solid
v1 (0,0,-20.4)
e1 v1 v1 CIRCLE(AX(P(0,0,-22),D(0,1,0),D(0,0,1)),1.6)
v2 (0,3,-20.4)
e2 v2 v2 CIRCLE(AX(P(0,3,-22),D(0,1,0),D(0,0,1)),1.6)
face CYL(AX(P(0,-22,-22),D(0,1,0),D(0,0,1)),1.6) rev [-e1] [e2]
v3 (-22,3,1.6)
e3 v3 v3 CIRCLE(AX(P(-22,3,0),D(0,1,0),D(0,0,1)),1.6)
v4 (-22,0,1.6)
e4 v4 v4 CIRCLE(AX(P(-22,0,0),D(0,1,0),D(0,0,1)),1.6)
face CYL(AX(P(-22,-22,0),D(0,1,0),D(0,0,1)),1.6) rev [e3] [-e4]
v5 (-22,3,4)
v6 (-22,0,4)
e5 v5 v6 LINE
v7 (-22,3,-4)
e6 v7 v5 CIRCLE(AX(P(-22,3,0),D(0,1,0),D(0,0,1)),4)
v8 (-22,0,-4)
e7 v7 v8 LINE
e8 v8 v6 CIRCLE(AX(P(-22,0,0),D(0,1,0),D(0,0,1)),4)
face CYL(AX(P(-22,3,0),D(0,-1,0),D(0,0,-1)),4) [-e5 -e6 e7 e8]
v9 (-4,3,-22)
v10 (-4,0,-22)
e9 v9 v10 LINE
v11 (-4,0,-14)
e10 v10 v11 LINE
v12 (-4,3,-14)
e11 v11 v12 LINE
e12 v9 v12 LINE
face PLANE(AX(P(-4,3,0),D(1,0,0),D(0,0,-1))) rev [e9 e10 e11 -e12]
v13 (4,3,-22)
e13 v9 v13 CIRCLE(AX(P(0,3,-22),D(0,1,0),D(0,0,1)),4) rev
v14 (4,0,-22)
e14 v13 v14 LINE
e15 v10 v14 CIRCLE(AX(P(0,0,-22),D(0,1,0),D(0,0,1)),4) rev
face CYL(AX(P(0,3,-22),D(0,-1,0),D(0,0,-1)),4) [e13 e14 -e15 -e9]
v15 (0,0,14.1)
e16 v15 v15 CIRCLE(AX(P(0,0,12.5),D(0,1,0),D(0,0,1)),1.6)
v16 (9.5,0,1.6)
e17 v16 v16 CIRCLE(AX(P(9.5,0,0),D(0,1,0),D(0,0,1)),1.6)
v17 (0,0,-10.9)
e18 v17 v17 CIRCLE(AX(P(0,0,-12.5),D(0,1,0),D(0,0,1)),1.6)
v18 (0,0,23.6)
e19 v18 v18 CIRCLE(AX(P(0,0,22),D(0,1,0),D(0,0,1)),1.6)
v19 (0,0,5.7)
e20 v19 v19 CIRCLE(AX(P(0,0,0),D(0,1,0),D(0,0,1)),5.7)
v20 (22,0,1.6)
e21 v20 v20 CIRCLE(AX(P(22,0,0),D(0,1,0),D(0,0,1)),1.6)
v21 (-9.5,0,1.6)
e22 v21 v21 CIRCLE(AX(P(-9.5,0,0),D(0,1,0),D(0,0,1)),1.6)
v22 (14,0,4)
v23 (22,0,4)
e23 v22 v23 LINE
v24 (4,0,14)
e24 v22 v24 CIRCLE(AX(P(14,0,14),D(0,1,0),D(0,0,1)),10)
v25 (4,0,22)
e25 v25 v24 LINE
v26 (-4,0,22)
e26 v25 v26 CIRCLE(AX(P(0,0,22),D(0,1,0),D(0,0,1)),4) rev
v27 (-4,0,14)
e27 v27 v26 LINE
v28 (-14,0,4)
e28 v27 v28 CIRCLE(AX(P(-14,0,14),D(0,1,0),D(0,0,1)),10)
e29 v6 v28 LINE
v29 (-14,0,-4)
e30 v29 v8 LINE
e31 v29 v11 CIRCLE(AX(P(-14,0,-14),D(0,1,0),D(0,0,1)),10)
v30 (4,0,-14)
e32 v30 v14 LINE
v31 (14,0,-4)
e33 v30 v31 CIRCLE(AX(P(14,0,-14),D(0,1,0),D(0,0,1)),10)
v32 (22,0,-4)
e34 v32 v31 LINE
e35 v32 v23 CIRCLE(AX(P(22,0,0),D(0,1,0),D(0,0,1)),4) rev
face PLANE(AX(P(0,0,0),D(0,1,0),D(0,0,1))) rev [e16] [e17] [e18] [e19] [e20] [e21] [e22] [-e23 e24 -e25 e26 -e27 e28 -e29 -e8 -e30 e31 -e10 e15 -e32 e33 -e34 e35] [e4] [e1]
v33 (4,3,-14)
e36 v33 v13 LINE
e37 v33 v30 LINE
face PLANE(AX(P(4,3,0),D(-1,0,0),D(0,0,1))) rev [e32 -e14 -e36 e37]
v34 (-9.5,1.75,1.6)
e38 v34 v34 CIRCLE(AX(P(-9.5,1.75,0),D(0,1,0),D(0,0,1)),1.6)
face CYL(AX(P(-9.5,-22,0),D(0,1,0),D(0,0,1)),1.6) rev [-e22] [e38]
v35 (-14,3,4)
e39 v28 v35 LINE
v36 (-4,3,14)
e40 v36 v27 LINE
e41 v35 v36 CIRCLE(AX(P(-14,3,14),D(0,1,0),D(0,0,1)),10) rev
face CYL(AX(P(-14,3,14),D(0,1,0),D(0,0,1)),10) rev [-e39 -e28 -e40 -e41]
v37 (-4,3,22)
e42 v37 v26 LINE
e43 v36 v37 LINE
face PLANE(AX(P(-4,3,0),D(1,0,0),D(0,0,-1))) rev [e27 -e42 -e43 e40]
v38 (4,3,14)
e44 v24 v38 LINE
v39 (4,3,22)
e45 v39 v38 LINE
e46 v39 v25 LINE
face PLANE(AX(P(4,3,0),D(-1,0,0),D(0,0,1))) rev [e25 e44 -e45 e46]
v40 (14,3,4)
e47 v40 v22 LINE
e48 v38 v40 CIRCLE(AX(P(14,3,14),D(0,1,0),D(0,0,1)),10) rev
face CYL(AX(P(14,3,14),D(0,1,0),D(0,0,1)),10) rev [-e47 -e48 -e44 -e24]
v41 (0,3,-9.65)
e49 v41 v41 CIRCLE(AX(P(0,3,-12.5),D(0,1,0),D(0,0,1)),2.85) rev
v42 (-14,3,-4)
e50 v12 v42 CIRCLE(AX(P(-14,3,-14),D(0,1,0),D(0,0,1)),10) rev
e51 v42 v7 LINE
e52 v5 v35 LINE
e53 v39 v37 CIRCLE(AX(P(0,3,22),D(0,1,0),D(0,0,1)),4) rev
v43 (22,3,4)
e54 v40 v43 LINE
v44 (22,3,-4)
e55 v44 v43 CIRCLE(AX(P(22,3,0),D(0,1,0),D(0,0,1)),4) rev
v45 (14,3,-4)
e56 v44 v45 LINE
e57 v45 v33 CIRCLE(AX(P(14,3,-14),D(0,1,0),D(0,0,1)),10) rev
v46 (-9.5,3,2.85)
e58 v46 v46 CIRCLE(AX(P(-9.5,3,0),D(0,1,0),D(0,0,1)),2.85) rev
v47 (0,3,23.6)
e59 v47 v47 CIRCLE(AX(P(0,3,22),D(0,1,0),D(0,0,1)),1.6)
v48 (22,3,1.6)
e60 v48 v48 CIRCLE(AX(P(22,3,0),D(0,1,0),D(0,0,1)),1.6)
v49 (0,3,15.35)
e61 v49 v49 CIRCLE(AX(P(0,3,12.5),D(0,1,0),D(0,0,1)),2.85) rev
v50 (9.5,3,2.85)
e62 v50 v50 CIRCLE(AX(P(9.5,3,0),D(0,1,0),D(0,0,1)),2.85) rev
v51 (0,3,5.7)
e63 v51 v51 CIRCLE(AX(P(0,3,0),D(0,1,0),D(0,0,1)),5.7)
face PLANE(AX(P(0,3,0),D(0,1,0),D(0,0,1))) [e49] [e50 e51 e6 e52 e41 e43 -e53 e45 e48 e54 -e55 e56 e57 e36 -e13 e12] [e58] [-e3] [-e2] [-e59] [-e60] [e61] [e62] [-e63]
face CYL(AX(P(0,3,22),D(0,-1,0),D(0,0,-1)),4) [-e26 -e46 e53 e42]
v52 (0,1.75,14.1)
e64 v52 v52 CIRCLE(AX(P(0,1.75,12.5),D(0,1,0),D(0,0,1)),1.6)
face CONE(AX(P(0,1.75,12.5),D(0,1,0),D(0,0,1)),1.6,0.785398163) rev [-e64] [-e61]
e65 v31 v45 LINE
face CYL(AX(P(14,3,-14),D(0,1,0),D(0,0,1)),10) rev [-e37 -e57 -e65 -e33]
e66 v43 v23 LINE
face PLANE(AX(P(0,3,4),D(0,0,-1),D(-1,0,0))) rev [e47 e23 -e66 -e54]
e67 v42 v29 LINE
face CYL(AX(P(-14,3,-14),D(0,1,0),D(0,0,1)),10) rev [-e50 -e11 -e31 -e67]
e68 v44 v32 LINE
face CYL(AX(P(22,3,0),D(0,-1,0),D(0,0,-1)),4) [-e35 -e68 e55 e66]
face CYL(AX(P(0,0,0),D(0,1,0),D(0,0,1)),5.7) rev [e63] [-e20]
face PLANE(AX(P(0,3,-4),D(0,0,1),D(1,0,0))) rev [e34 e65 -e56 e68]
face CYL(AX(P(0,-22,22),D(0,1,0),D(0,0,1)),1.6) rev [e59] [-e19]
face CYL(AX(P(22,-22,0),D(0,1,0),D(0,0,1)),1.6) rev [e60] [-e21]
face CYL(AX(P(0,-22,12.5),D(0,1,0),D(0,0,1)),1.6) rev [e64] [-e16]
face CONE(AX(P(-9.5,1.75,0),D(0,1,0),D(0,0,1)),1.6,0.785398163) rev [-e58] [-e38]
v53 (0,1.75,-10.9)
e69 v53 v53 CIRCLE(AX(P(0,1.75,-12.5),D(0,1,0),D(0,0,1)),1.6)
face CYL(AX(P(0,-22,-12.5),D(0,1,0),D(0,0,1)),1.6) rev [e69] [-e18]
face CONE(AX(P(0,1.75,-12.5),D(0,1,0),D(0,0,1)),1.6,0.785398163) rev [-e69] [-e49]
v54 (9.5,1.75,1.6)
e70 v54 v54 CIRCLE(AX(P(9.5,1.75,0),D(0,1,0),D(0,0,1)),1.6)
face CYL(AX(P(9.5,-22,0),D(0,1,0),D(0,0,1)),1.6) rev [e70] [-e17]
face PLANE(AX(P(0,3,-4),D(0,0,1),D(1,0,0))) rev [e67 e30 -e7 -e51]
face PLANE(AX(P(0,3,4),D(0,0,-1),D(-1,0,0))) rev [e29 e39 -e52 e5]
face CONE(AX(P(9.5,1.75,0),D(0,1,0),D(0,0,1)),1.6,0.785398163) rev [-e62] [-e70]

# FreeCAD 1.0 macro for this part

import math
import FreeCAD as App
import Part
import Sketcher
from FreeCAD import Vector
Q = App.Units.Quantity


def edges_at(feature, points):
    """Names of the edges that pass closest to the given points."""
    edges = feature.Shape.Edges
    near = lambda p: min(range(len(edges)), key=lambda i: edges[i].distToShape(Part.Vertex(*p))[0])
    return sorted({f"Edge{near(p) + 1}" for p in points})

doc = App.newDocument("Part")
body = doc.addObject("PartDesign::Body", "Body")

# Sketch on XZ plane
sketch1 = body.newObject("Sketcher::SketchObject", "Sketch")
sketch1.AttachmentSupport = (doc.getObject("XZ_Plane"), [""])
sketch1.MapMode = "FlatFace"
sketch1.addGeometry(Part.LineSegment(Vector(4, -4, 0), Vector(4, -22, 0)), False)
sketch1.addGeometry(Part.ArcOfCircle(Part.Circle(Vector(0, -22, 0), Vector(0, 0, 1), 4), math.radians(180), math.radians(360)), False)
sketch1.addGeometry(Part.LineSegment(Vector(-4, -22, 0), Vector(-4, -4, 0)), False)
sketch1.addGeometry(Part.LineSegment(Vector(-4, -4, 0), Vector(-22, -4, 0)), False)
sketch1.addGeometry(Part.ArcOfCircle(Part.Circle(Vector(-22, 0, 0), Vector(0, 0, 1), 4), math.radians(90), math.radians(270)), False)
sketch1.addGeometry(Part.LineSegment(Vector(-22, 4, 0), Vector(-4, 4, 0)), False)
sketch1.addGeometry(Part.LineSegment(Vector(-4, 4, 0), Vector(-4, 22, 0)), False)
sketch1.addGeometry(Part.ArcOfCircle(Part.Circle(Vector(0, 22, 0), Vector(0, 0, 1), 4), math.radians(0), math.radians(180)), False)
sketch1.addGeometry(Part.LineSegment(Vector(4, 22, 0), Vector(4, 4, 0)), False)
sketch1.addGeometry(Part.LineSegment(Vector(4, 4, 0), Vector(22, 4, 0)), False)
sketch1.addGeometry(Part.ArcOfCircle(Part.Circle(Vector(22, 0, 0), Vector(0, 0, 1), 4), math.radians(-90), math.radians(90)), False)
sketch1.addGeometry(Part.LineSegment(Vector(22, -4, 0), Vector(4, -4, 0)), False)
sketch1.addConstraint(Sketcher.Constraint("Tangent", 0, 2, 1, 2))
sketch1.addConstraint(Sketcher.Constraint("Tangent", 1, 1, 2, 1))
sketch1.addConstraint(Sketcher.Constraint("Coincident", 2, 2, 3, 1))
sketch1.addConstraint(Sketcher.Constraint("Tangent", 3, 2, 4, 2))
sketch1.addConstraint(Sketcher.Constraint("Tangent", 4, 1, 5, 1))
sketch1.addConstraint(Sketcher.Constraint("Coincident", 5, 2, 6, 1))
sketch1.addConstraint(Sketcher.Constraint("Tangent", 6, 2, 7, 2))
sketch1.addConstraint(Sketcher.Constraint("Tangent", 7, 1, 8, 1))
sketch1.addConstraint(Sketcher.Constraint("Coincident", 8, 2, 9, 1))
sketch1.addConstraint(Sketcher.Constraint("Tangent", 9, 2, 10, 2))
sketch1.addConstraint(Sketcher.Constraint("Tangent", 10, 1, 11, 1))
sketch1.addConstraint(Sketcher.Constraint("Coincident", 11, 2, 0, 1))
sketch1.addConstraint(Sketcher.Constraint("Vertical", 0))
sketch1.addConstraint(Sketcher.Constraint("Vertical", 2))
sketch1.addConstraint(Sketcher.Constraint("Horizontal", 3))
sketch1.addConstraint(Sketcher.Constraint("Horizontal", 5))
sketch1.addConstraint(Sketcher.Constraint("Vertical", 6))
sketch1.addConstraint(Sketcher.Constraint("Vertical", 8))
sketch1.addConstraint(Sketcher.Constraint("Horizontal", 9))
sketch1.addConstraint(Sketcher.Constraint("Horizontal", 11))
sketch1.addConstraint(Sketcher.Constraint("Equal", 1, 4))
sketch1.addConstraint(Sketcher.Constraint("Equal", 4, 7))
sketch1.addConstraint(Sketcher.Constraint("Equal", 7, 10))
sketch1.addConstraint(Sketcher.Constraint("Symmetric", 1, 3, 7, 3, -1, 1))
sketch1.addConstraint(Sketcher.Constraint("Symmetric", 4, 3, 10, 3, -1, 1))
sketch1.addConstraint(Sketcher.Constraint("Symmetric", 5, 2, 8, 2, -2))
sketch1.addConstraint(Sketcher.Constraint("Equal", 11, 0))
sketch1.addConstraint(Sketcher.Constraint("Radius", 1, Q("4 mm")))
sketch1.addConstraint(Sketcher.Constraint("DistanceX", 3, 2, 3, 1, Q("18 mm")))
pad1 = body.newObject("PartDesign::Pad", "Pad")
pad1.Profile = sketch1
pad1.Length = 3
pad1.Reversed = True

# Sketch on XZ plane
sketch2 = body.newObject("Sketcher::SketchObject", "Sketch001")
sketch2.AttachmentSupport = (doc.getObject("XZ_Plane"), [""])
sketch2.MapMode = "FlatFace"
sketch2.AttachmentOffset = App.Placement(Vector(0, 0, -3), App.Rotation())
sketch2.addGeometry(Part.Circle(Vector(-22, 0, 0), Vector(0, 0, 1), 1.6), False)
sketch2.addGeometry(Part.Circle(Vector(0, -22, 0), Vector(0, 0, 1), 1.6), False)
sketch2.addGeometry(Part.Circle(Vector(0, 22, 0), Vector(0, 0, 1), 1.6), False)
sketch2.addGeometry(Part.Circle(Vector(22, 0, 0), Vector(0, 0, 1), 1.6), False)
sketch2.addGeometry(Part.Circle(Vector(0, -12.5, 0), Vector(0, 0, 1), 1.6), False)
sketch2.addGeometry(Part.Circle(Vector(-9.5, 0, 0), Vector(0, 0, 1), 1.6), False)
sketch2.addGeometry(Part.Circle(Vector(0, 12.5, 0), Vector(0, 0, 1), 1.6), False)
sketch2.addGeometry(Part.Circle(Vector(9.5, 0, 0), Vector(0, 0, 1), 1.6), False)
sketch2.addConstraint(Sketcher.Constraint("Equal", 0, 1))
sketch2.addConstraint(Sketcher.Constraint("Equal", 1, 2))
sketch2.addConstraint(Sketcher.Constraint("Equal", 2, 3))
sketch2.addConstraint(Sketcher.Constraint("Equal", 3, 4))
sketch2.addConstraint(Sketcher.Constraint("Equal", 4, 5))
sketch2.addConstraint(Sketcher.Constraint("Equal", 5, 6))
sketch2.addConstraint(Sketcher.Constraint("Equal", 6, 7))
sketch2.addConstraint(Sketcher.Constraint("Symmetric", 1, 3, 2, 3, -1, 1))
sketch2.addConstraint(Sketcher.Constraint("Symmetric", 0, 3, 3, 3, -1, 1))
sketch2.addConstraint(Sketcher.Constraint("Symmetric", 4, 3, 6, 3, -1, 1))
sketch2.addConstraint(Sketcher.Constraint("Symmetric", 5, 3, 7, 3, -1, 1))
sketch2.addConstraint(Sketcher.Constraint("PointOnObject", 0, 3, -1))
sketch2.addConstraint(Sketcher.Constraint("PointOnObject", 1, 3, -2))
sketch2.addConstraint(Sketcher.Constraint("PointOnObject", 4, 3, -2))
sketch2.addConstraint(Sketcher.Constraint("PointOnObject", 5, 3, -1))
sketch2.addConstraint(Sketcher.Constraint("Diameter", 0, Q("3.2 mm")))
sketch2.addConstraint(Sketcher.Constraint("DistanceX", 0, 3, -1, 1, Q("22 mm")))
sketch2.addConstraint(Sketcher.Constraint("DistanceY", 1, 3, -1, 1, Q("22 mm")))
sketch2.addConstraint(Sketcher.Constraint("DistanceY", 4, 3, 6, 3, Q("25 mm")))
sketch2.addConstraint(Sketcher.Constraint("DistanceX", 5, 3, 7, 3, Q("19 mm")))
pocket1 = body.newObject("PartDesign::Pocket", "Pocket")
pocket1.Profile = sketch2
pocket1.Length = 25
pocket1.Reversed = True
doc.recompute()

chamfer = body.newObject("PartDesign::Chamfer", "Chamfer")
chamfer.Base = (pocket1, edges_at(pocket1, [
    (9.5, 3, -1.6),
    (0, 3, 10.9),
    (-9.5, 3, -1.6),
    (0, 3, -14.1),
]))
chamfer.Size = 1.25
doc.recompute()

fillet = body.newObject("PartDesign::Fillet", "Fillet")
fillet.Base = (chamfer, edges_at(chamfer, [
    (4, 1.5, -4),
    (4, 1.5, 4),
    (-4, 1.5, 4),
    (-4, 1.5, -4),
]))
fillet.Radius = 10

# Sketch on XZ plane
sketch3 = body.newObject("Sketcher::SketchObject", "Sketch002")
sketch3.AttachmentSupport = (doc.getObject("XZ_Plane"), [""])
sketch3.MapMode = "FlatFace"
sketch3.AttachmentOffset = App.Placement(Vector(0, 0, -3), App.Rotation())
sketch3.addGeometry(Part.Circle(Vector(0, 0, 0), Vector(0, 0, 1), 6), False)
sketch3.addConstraint(Sketcher.Constraint("Coincident", 0, 3, -1, 1))
sketch3.addConstraint(Sketcher.Constraint("Diameter", 0, Q("11.4 mm")))
pocket2 = body.newObject("PartDesign::Pocket", "Pocket001")
pocket2.Profile = sketch3
pocket2.Length = 3
pocket2.Reversed = True

doc.recompute()
